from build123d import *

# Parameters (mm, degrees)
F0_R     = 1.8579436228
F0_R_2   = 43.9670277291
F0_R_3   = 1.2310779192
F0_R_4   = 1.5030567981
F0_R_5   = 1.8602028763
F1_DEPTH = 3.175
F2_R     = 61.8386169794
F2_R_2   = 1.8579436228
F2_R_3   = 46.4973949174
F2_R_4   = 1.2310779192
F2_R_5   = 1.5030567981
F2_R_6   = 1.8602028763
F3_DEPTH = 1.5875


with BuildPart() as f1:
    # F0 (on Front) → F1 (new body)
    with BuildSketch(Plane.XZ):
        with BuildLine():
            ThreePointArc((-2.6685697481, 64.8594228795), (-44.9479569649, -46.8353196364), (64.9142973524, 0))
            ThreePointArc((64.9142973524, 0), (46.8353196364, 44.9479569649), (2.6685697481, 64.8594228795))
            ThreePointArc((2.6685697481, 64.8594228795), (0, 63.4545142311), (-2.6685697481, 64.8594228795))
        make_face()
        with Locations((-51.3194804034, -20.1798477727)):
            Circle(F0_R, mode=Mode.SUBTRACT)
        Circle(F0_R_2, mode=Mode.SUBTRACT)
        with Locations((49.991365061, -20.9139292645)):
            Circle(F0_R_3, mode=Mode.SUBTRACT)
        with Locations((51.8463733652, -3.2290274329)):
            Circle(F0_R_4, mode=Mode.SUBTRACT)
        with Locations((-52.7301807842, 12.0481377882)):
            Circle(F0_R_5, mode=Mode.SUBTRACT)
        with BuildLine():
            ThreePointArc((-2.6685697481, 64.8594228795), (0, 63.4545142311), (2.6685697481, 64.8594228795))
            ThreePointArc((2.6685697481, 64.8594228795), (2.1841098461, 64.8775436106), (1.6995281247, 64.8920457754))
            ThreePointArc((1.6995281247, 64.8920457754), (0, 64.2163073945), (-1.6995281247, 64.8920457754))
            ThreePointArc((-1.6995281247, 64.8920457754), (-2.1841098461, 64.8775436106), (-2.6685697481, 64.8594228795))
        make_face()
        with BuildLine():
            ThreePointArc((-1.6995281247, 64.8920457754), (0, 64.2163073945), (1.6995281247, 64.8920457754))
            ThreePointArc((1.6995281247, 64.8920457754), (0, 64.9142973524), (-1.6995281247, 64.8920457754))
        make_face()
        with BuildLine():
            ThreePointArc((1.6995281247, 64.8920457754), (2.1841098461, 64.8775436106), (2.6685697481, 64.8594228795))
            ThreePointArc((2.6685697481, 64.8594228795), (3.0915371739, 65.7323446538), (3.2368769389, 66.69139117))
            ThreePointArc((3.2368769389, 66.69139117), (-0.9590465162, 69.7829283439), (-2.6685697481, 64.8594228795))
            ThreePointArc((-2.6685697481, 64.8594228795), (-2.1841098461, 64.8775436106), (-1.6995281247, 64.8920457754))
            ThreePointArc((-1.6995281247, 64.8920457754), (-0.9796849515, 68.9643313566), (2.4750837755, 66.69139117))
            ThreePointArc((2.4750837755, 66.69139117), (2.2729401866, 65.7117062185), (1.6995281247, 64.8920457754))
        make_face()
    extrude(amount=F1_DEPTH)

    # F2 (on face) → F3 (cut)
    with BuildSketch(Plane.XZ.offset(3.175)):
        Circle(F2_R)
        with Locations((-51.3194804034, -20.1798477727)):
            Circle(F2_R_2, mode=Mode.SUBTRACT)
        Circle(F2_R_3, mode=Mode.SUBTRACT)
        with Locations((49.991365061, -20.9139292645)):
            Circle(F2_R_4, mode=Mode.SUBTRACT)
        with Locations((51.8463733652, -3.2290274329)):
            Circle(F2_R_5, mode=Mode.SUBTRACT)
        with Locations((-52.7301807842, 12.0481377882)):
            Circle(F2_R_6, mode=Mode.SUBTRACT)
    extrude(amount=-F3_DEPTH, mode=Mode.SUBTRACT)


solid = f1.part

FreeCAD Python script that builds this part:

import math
import FreeCAD as App
import Part
import Sketcher

V = App.Vector
Q = App.Units.Quantity

doc = App.newDocument("Part")
params = doc.addObject("Spreadsheet::Sheet", "Params")
for row, (alias, value) in enumerate([
    ("pad1_length", "0.125 in"),
    ("pocket1_length", "0.0625 in"),
], start=1):
    params.set(f"A{row}", alias)
    params.set(f"B{row}", "=" + value)
    params.setAlias(f"B{row}", alias)

body = doc.addObject("PartDesign::Body", "Body")

# Sketch on XZ plane
sketch1 = body.newObject("Sketcher::SketchObject", "Sketch")
sketch1.AttachmentSupport = (doc.getObject("XZ_Plane"), [""])
sketch1.MapMode = "FlatFace"
sketch1.addGeometry([
    Part.ArcOfCircle(Part.Circle(V(0, 0, 0), V(0, 0, 1), 64.9), math.radians(92), math.radians(360)),  # 0
    Part.ArcOfCircle(Part.Circle(V(0, 0, 0), V(0, 0, 1), 64.9), math.radians(0), math.radians(88)),  # 1
    Part.ArcOfCircle(Part.Circle(V(0, 66.7, 0), V(0, 0, 1), 3.2), math.radians(-34), math.radians(0)),  # 2
    Part.ArcOfCircle(Part.Circle(V(0, 66.7, 0), V(0, 0, 1), 3.2), math.radians(0), math.radians(214)),  # 3
    Part.ArcOfCircle(Part.Circle(V(0, 0, 0), V(0, 0, 1), 64.9), math.radians(88.5), math.radians(91.5)),  # 4
    Part.ArcOfCircle(Part.Circle(V(0, 66.7, 0), V(0, 0, 1), 2.5), math.radians(0), math.radians(227)),  # 5
    Part.ArcOfCircle(Part.Circle(V(0, 66.7, 0), V(0, 0, 1), 2.5), math.radians(-47), math.radians(0)),  # 6
    Part.Circle(V(-51.3, -20.2, 0), V(0, 0, 1), 1.9),  # 7
    Part.Circle(V(50, -20.9, 0), V(0, 0, 1), 1.2),  # 8
    Part.Circle(V(51.8, -3.2, 0), V(0, 0, 1), 1.5),  # 9
    Part.Circle(V(-52.7, 12, 0), V(0, 0, 1), 1.9),  # 10
    Part.Circle(V(0, 0, 0), V(0, 0, 1), 44),  # 11
], False)
sketch1.addConstraint([
    Sketcher.Constraint("Tangent", 0, 2, 1, 1),
    Sketcher.Constraint("Coincident", 1, 2, 2, 1),
    Sketcher.Constraint("Tangent", 2, 2, 3, 1),
    Sketcher.Constraint("Coincident", 3, 2, 0, 1),
    Sketcher.Constraint("Coincident", 4, 2, 5, 2),
    Sketcher.Constraint("Tangent", 5, 1, 6, 2),
    Sketcher.Constraint("Coincident", 6, 1, 4, 1),
    Sketcher.Constraint("Coincident", 0, 3, -1, 1),
    Sketcher.Constraint("Coincident", 4, 3, -1, 1),
    Sketcher.Constraint("Coincident", 11, 3, -1, 1),
    Sketcher.Constraint("Coincident", 5, 3, 2, 3),
    Sketcher.Constraint("Equal", 0, 1),
    Sketcher.Constraint("Equal", 2, 3),
    Sketcher.Constraint("Equal", 1, 4),
    Sketcher.Constraint("Equal", 5, 6),
    Sketcher.Constraint("PointOnObject", 2, 3, -2),
    Sketcher.Constraint("PointOnObject", 0, 2, -1),
    Sketcher.Constraint("Horizontal", 6, 3, 2, 2),
    Sketcher.Constraint("Horizontal", 2, 2, 5, 1),
    Sketcher.Constraint("Diameter", 7, Q("3.715887 mm")),
    Sketcher.Constraint("Diameter", 8, Q("2.462156 mm")),
    Sketcher.Constraint("Diameter", 9, Q("3.006114 mm")),
    Sketcher.Constraint("Diameter", 10, Q("3.720406 mm")),
    Sketcher.Constraint("Diameter", 11, Q("87.934055 mm")),
    Sketcher.Constraint("Radius", 0, Q("64.914297 mm")),
    Sketcher.Constraint("Radius", 2, Q("3.236877 mm")),
    Sketcher.Constraint("Radius", 5, Q("2.475084 mm")),
    Sketcher.Constraint("DistanceY", 8, 3, 9, 3, Q("17.684902 mm")),
    Sketcher.Constraint("DistanceX", 10, 3, 7, 3, Q("1.4107 mm")),
    Sketcher.Constraint("DistanceY", -1, 1, 2, 3, Q("66.691391 mm")),
    Sketcher.Constraint("DistanceX", 7, 3, -1, 1, Q("51.31948 mm")),
    Sketcher.Constraint("DistanceY", 8, 3, -1, 1, Q("20.913929 mm")),
    Sketcher.Constraint("DistanceY", 7, 3, 2, 3, Q("86.871239 mm")),
    Sketcher.Constraint("DistanceX", 8, 3, 9, 3, Q("1.855008 mm")),
    Sketcher.Constraint("DistanceX", -1, 1, 8, 3, Q("49.991365 mm")),
    Sketcher.Constraint("DistanceY", -1, 1, 10, 3, Q("12.048138 mm")),
])
pad1 = body.newObject("PartDesign::Pad", "Pad")
pad1.Profile = sketch1
pad1.setExpression("Length", "Params.pad1_length")

# Sketch on XZ plane
sketch2 = body.newObject("Sketcher::SketchObject", "Sketch001")
sketch2.AttachmentSupport = (doc.getObject("XZ_Plane"), [""])
sketch2.MapMode = "FlatFace"
sketch2.AttachmentOffset = App.Placement(V(0, 0, 0.125 * 25.4), App.Rotation())
sketch2.addGeometry([
    Part.Circle(V(0, 0, 0), V(0, 0, 1), 61.8),  # 0
    Part.Circle(V(-51.3, -20.2, 0), V(0, 0, 1), 1.9),  # 1
    Part.Circle(V(50, -20.9, 0), V(0, 0, 1), 1.2),  # 2
    Part.Circle(V(51.8, -3.2, 0), V(0, 0, 1), 1.5),  # 3
    Part.Circle(V(-52.7, 12, 0), V(0, 0, 1), 1.9),  # 4
    Part.Circle(V(0, 0, 0), V(0, 0, 1), 46.5),  # 5
], False)
sketch2.addConstraint([
    Sketcher.Constraint("Coincident", 0, 3, -1, 1),
    Sketcher.Constraint("Coincident", 5, 3, -1, 1),
    Sketcher.Constraint("Diameter", 5, Q("92.99479 mm")),
    Sketcher.Constraint("Diameter", 0, Q("123.677234 mm")),
    Sketcher.Constraint("Diameter", 1, Q("3.715887 mm")),
    Sketcher.Constraint("Diameter", 2, Q("2.462156 mm")),
    Sketcher.Constraint("Diameter", 3, Q("3.006114 mm")),
    Sketcher.Constraint("Diameter", 4, Q("3.720406 mm")),
    Sketcher.Constraint("DistanceY", 2, 3, 3, 3, Q("17.684902 mm")),
    Sketcher.Constraint("DistanceX", 4, 3, 1, 3, Q("1.4107 mm")),
    Sketcher.Constraint("DistanceX", 1, 3, -1, 1, Q("51.31948 mm")),
    Sketcher.Constraint("DistanceY", 2, 3, -1, 1, Q("20.913929 mm")),
    Sketcher.Constraint("DistanceY", 2, 3, 1, 3, Q("0.734081 mm")),
    Sketcher.Constraint("DistanceX", 2, 3, 3, 3, Q("1.855008 mm")),
    Sketcher.Constraint("DistanceX", -1, 1, 2, 3, Q("49.991365 mm")),
    Sketcher.Constraint("DistanceY", -1, 1, 4, 3, Q("12.048138 mm")),
])
pocket1 = body.newObject("PartDesign::Pocket", "Pocket")
pocket1.Profile = sketch2
pocket1.setExpression("Length", "Params.pocket1_length")

doc.recompute()
